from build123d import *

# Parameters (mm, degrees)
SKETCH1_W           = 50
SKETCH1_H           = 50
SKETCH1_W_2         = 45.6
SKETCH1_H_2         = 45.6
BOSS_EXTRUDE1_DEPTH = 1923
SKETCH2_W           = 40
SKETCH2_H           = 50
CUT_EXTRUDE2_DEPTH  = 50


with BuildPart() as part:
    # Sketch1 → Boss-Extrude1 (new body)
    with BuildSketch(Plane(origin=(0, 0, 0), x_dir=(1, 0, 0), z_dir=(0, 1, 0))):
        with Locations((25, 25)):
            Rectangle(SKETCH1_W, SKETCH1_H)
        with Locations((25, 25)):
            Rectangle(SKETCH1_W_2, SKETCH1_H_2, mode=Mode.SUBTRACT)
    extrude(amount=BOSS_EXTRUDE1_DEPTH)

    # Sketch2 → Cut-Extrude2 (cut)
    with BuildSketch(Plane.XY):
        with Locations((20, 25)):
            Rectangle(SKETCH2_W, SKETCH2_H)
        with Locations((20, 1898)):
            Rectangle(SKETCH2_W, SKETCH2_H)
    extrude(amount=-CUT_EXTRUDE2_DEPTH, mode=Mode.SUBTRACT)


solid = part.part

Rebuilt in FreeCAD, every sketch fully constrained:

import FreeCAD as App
import Part
import Sketcher
from FreeCAD import Vector
Q = App.Units.Quantity

doc = App.newDocument("Part")
params = doc.addObject("Spreadsheet::Sheet", "Params")
for row, (alias, value) in enumerate([
    ("sketch1_width", "50 mm"),
    ("sketch1_width2", "45.6 mm"),
    ("pad1_length", "1923 mm"),
    ("sketch2_width", "40 mm"),
    ("sketch2_height", "50 mm"),
    ("pocket1_length", "50 mm"),
], start=1):
    params.set(f"A{row}", alias)
    params.set(f"B{row}", "=" + value)
    params.setAlias(f"B{row}", alias)

body = doc.addObject("PartDesign::Body", "Body")

sketch1 = body.newObject("Sketcher::SketchObject", "Sketch")
sketch1.AttachmentSupport = (doc.getObject("XZ_Plane"), [""])
sketch1.MapMode = "FlatFace"
sketch1.addGeometry(Part.LineSegment(Vector(0, -50, 0), Vector(0, 0, 0)), False)
sketch1.addGeometry(Part.LineSegment(Vector(0, 0, 0), Vector(50, 0, 0)), False)
sketch1.addGeometry(Part.LineSegment(Vector(50, 0, 0), Vector(50, -50, 0)), False)
sketch1.addGeometry(Part.LineSegment(Vector(50, -50, 0), Vector(0, -50, 0)), False)
sketch1.addGeometry(Part.LineSegment(Vector(48, -2, 0), Vector(2, -2, 0)), False)
sketch1.addGeometry(Part.LineSegment(Vector(2, -2, 0), Vector(2, -48, 0)), False)
sketch1.addGeometry(Part.LineSegment(Vector(2, -48, 0), Vector(48, -48, 0)), False)
sketch1.addGeometry(Part.LineSegment(Vector(48, -48, 0), Vector(48, -2, 0)), False)
sketch1.addConstraint(Sketcher.Constraint("Coincident", 0, 2, 1, 1))
sketch1.addConstraint(Sketcher.Constraint("Coincident", 1, 2, 2, 1))
sketch1.addConstraint(Sketcher.Constraint("Coincident", 2, 2, 3, 1))
sketch1.addConstraint(Sketcher.Constraint("Coincident", 3, 2, 0, 1))
sketch1.addConstraint(Sketcher.Constraint("Coincident", 4, 2, 5, 1))
sketch1.addConstraint(Sketcher.Constraint("Coincident", 5, 2, 6, 1))
sketch1.addConstraint(Sketcher.Constraint("Coincident", 6, 2, 7, 1))
sketch1.addConstraint(Sketcher.Constraint("Coincident", 7, 2, 4, 1))
sketch1.addConstraint(Sketcher.Constraint("Vertical", 0))
sketch1.addConstraint(Sketcher.Constraint("Horizontal", 1))
sketch1.addConstraint(Sketcher.Constraint("Vertical", 2))
sketch1.addConstraint(Sketcher.Constraint("Horizontal", 3))
sketch1.addConstraint(Sketcher.Constraint("Horizontal", 4))
sketch1.addConstraint(Sketcher.Constraint("Vertical", 5))
sketch1.addConstraint(Sketcher.Constraint("Horizontal", 6))
sketch1.addConstraint(Sketcher.Constraint("Vertical", 7))
sketch1.addConstraint(Sketcher.Constraint("Coincident", 0, 2, -1, 1))
sketch1.addConstraint(Sketcher.Constraint("Equal", 3, 0))
sketch1.addConstraint(Sketcher.Constraint("Equal", 6, 5))
sketch1.addConstraint(Sketcher.Constraint("DistanceX", 1, 1, 1, 2, Q("50 mm")))
sketch1.addConstraint(Sketcher.Constraint("DistanceX", 4, 2, 4, 1, Q("45.6 mm")))
sketch1.addConstraint(Sketcher.Constraint("DistanceX", -1, 1, 4, 2, Q("2.2 mm")))
sketch1.addConstraint(Sketcher.Constraint("DistanceY", 4, 2, -1, 1, Q("2.2 mm")))
sketch1.setExpression("Constraints[19]", "Params.sketch1_width")
sketch1.setExpression("Constraints[20]", "Params.sketch1_width2")
pad1 = body.newObject("PartDesign::Pad", "Pad")
pad1.Profile = sketch1
pad1.setExpression("Length", "Params.pad1_length")
pad1.Reversed = True

sketch2 = body.newObject("Sketcher::SketchObject", "Sketch001")
sketch2.AttachmentSupport = (doc.getObject("XY_Plane"), [""])
sketch2.MapMode = "FlatFace"
sketch2.addGeometry(Part.LineSegment(Vector(0, 50, 0), Vector(0, 0, 0)), False)
sketch2.addGeometry(Part.LineSegment(Vector(0, 0, 0), Vector(40, 0, 0)), False)
sketch2.addGeometry(Part.LineSegment(Vector(40, 0, 0), Vector(40, 50, 0)), False)
sketch2.addGeometry(Part.LineSegment(Vector(40, 50, 0), Vector(0, 50, 0)), False)
sketch2.addGeometry(Part.LineSegment(Vector(0, 1923, 0), Vector(0, 1873, 0)), False)
sketch2.addGeometry(Part.LineSegment(Vector(0, 1873, 0), Vector(40, 1873, 0)), False)
sketch2.addGeometry(Part.LineSegment(Vector(40, 1873, 0), Vector(40, 1923, 0)), False)
sketch2.addGeometry(Part.LineSegment(Vector(40, 1923, 0), Vector(0, 1923, 0)), False)
sketch2.addConstraint(Sketcher.Constraint("Coincident", 0, 2, 1, 1))
sketch2.addConstraint(Sketcher.Constraint("Coincident", 1, 2, 2, 1))
sketch2.addConstraint(Sketcher.Constraint("Coincident", 2, 2, 3, 1))
sketch2.addConstraint(Sketcher.Constraint("Coincident", 3, 2, 0, 1))
sketch2.addConstraint(Sketcher.Constraint("Coincident", 4, 2, 5, 1))
sketch2.addConstraint(Sketcher.Constraint("Coincident", 5, 2, 6, 1))
sketch2.addConstraint(Sketcher.Constraint("Coincident", 6, 2, 7, 1))
sketch2.addConstraint(Sketcher.Constraint("Coincident", 7, 2, 4, 1))
sketch2.addConstraint(Sketcher.Constraint("Vertical", 0))
sketch2.addConstraint(Sketcher.Constraint("Horizontal", 1))
sketch2.addConstraint(Sketcher.Constraint("Vertical", 2))
sketch2.addConstraint(Sketcher.Constraint("Horizontal", 3))
sketch2.addConstraint(Sketcher.Constraint("Vertical", 4))
sketch2.addConstraint(Sketcher.Constraint("Horizontal", 5))
sketch2.addConstraint(Sketcher.Constraint("Vertical", 6))
sketch2.addConstraint(Sketcher.Constraint("Horizontal", 7))
sketch2.addConstraint(Sketcher.Constraint("Coincident", 0, 2, -1, 1))
sketch2.addConstraint(Sketcher.Constraint("PointOnObject", 4, 2, -2))
sketch2.addConstraint(Sketcher.Constraint("Vertical", 2, 2, 5, 2))
sketch2.addConstraint(Sketcher.Constraint("Equal", 2, 4))
sketch2.addConstraint(Sketcher.Constraint("DistanceX", 1, 1, 1, 2, Q("40 mm")))
sketch2.addConstraint(Sketcher.Constraint("DistanceY", 0, 2, 0, 1, Q("50 mm")))
sketch2.addConstraint(Sketcher.Constraint("DistanceY", -1, 1, 4, 2, Q("1873 mm")))
sketch2.setExpression("Constraints[20]", "Params.sketch2_width")
sketch2.setExpression("Constraints[21]", "Params.sketch2_height")
pocket1 = body.newObject("PartDesign::Pocket", "Pocket")
pocket1.Profile = sketch2
pocket1.setExpression("Length", "Params.pocket1_length")

doc.recompute()
